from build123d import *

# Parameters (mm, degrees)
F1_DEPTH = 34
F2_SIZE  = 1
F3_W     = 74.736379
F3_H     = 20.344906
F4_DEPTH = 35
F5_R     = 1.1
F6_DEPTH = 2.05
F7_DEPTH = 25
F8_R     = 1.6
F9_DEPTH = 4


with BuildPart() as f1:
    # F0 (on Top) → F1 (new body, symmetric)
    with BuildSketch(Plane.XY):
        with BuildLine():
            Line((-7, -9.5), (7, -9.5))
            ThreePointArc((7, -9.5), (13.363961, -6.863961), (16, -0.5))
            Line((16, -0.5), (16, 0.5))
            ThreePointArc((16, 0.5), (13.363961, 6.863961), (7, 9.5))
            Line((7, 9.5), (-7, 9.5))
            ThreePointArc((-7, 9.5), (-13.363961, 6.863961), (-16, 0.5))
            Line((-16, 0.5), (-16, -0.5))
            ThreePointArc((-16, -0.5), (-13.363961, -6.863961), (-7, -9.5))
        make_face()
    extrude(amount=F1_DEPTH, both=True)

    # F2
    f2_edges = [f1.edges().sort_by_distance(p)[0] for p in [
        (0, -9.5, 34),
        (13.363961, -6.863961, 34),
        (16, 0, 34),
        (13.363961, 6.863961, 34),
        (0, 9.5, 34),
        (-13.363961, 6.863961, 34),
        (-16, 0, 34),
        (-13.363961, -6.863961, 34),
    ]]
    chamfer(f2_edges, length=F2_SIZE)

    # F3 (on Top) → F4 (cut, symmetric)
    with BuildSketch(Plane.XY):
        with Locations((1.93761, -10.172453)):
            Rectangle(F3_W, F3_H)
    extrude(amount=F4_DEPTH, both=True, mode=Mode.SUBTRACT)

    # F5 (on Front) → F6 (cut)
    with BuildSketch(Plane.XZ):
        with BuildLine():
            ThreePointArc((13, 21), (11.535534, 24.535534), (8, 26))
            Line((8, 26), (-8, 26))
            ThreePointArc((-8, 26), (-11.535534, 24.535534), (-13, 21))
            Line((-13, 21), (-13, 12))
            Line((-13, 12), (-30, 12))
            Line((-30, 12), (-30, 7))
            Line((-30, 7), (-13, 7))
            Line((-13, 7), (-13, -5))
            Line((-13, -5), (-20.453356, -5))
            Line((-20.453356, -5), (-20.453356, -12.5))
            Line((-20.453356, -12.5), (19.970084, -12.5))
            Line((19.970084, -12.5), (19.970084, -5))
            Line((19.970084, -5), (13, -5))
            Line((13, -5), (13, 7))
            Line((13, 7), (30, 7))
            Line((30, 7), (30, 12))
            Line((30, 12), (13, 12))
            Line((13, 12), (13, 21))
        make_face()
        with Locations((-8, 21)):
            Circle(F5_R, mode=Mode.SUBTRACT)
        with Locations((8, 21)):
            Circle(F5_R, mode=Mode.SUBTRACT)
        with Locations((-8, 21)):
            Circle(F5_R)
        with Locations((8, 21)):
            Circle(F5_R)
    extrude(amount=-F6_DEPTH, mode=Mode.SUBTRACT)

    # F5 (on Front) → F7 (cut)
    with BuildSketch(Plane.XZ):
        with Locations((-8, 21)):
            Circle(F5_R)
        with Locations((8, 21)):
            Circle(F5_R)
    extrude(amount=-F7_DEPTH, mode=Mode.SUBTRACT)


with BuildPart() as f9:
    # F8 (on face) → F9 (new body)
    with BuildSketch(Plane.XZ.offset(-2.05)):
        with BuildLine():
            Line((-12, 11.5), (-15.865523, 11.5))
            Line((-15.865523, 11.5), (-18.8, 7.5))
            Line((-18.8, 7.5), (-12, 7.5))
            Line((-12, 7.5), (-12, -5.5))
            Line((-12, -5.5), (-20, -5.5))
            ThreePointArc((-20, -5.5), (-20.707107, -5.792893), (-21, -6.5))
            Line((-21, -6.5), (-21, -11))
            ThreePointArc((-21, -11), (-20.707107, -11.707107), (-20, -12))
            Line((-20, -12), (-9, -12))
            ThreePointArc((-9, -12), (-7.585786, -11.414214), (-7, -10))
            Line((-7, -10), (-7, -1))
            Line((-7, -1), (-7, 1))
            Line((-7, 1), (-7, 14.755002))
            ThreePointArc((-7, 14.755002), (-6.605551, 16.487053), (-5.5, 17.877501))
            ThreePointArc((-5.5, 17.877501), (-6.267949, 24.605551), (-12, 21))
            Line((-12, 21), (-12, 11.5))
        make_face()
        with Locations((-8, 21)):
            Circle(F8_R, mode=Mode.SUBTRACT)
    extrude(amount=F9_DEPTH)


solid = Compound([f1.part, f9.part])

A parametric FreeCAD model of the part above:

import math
import FreeCAD as App
import Part
import Sketcher
from FreeCAD import Vector


def edges_at(feature, points):
    """Names of the edges that pass closest to the given points."""
    edges = feature.Shape.Edges
    near = lambda p: min(range(len(edges)), key=lambda i: edges[i].distToShape(Part.Vertex(*p))[0])
    return sorted({f"Edge{near(p) + 1}" for p in points})

doc = App.newDocument("Part")
body = doc.addObject("PartDesign::Body", "Body")

# Sketch on XY plane
sketch1 = body.newObject("Sketcher::SketchObject", "Sketch")
sketch1.AttachmentSupport = (doc.getObject("XY_Plane"), [""])
sketch1.MapMode = "FlatFace"
sketch1.addGeometry([
    Part.LineSegment(Vector(-7, -9.5, 0), Vector(7, -9.5, 0)),  # 0
    Part.ArcOfCircle(Part.Circle(Vector(7, -0.5, 0), Vector(0, 0, 1), 9), math.radians(-89.999999), math.radians(-0.000001)),  # 1
    Part.LineSegment(Vector(16, -0.5, 0), Vector(16, 0.5, 0)),  # 2
    Part.ArcOfCircle(Part.Circle(Vector(7, 0.5, 0), Vector(0, 0, 1), 9), math.radians(0.000001), math.radians(89.999999)),  # 3
    Part.LineSegment(Vector(7, 9.5, 0), Vector(-7, 9.5, 0)),  # 4
    Part.ArcOfCircle(Part.Circle(Vector(-7, 0.5, 0), Vector(0, 0, 1), 9), math.radians(90.000001), math.radians(179.999999)),  # 5
    Part.LineSegment(Vector(-16, 0.5, 0), Vector(-16, -0.5, 0)),  # 6
    Part.ArcOfCircle(Part.Circle(Vector(-7, -0.5, 0), Vector(0, 0, 1), 9), math.radians(-179.999999), math.radians(-90.000001)),  # 7
], False)
sketch1.addConstraint([
    Sketcher.Constraint("Tangent", 0, 2, 1, 1),
    Sketcher.Constraint("Tangent", 1, 2, 2, 1),
    Sketcher.Constraint("Tangent", 2, 2, 3, 1),
    Sketcher.Constraint("Tangent", 3, 2, 4, 1),
    Sketcher.Constraint("Tangent", 4, 2, 5, 1),
    Sketcher.Constraint("Tangent", 5, 2, 6, 1),
    Sketcher.Constraint("Tangent", 6, 2, 7, 1),
    Sketcher.Constraint("Tangent", 7, 2, 0, 1),
    Sketcher.Constraint("Horizontal", 0),
    Sketcher.Constraint("Vertical", 2),
    Sketcher.Constraint("Horizontal", 4),
    Sketcher.Constraint("Vertical", 6),
    Sketcher.Constraint("Equal", 1, 3),
    Sketcher.Constraint("Equal", 3, 5),
    Sketcher.Constraint("Equal", 5, 7),
    Sketcher.Constraint("Symmetric", 1, 3, 5, 3, -1, 1),
    Sketcher.Constraint("Radius", 1, 9.0),
    Sketcher.Constraint("DistanceX", 0, 1, 0, 2, 14.0),
    Sketcher.Constraint("DistanceY", 2, 1, 2, 2, 1.0),
])
pad1 = body.newObject("PartDesign::Pad", "Pad")
pad1.Profile = sketch1
pad1.Length = 68
pad1.Midplane = True
doc.recompute()

chamfer = body.newObject("PartDesign::Chamfer", "Chamfer")
chamfer.Base = (pad1, edges_at(pad1, [
    (0, -9.5, 34),
    (13.364, -6.864, 34),
    (16, 0, 34),
    (13.364, 6.864, 34),
    (0, 9.5, 34),
    (-13.364, 6.864, 34),
    (-16, 0, 34),
    (-13.364, -6.864, 34),
]))
chamfer.Size = 1

# Sketch on XY plane
sketch2 = body.newObject("Sketcher::SketchObject", "Sketch001")
sketch2.AttachmentSupport = (doc.getObject("XY_Plane"), [""])
sketch2.MapMode = "FlatFace"
sketch2.addGeometry([
    Part.LineSegment(Vector(-35.43058, 0, 0), Vector(-35.43058, -20.344906, 0)),
    Part.LineSegment(Vector(-35.43058, -20.344906, 0), Vector(39.305799, -20.344906, 0)),
    Part.LineSegment(Vector(39.305799, -20.344906, 0), Vector(39.305799, 0, 0)),
    Part.LineSegment(Vector(39.305799, 0, 0), Vector(-35.43058, 0, 0)),
], False)
sketch2.addConstraint([
    Sketcher.Constraint("Coincident", 0, 2, 1, 1),
    Sketcher.Constraint("Coincident", 1, 2, 2, 1),
    Sketcher.Constraint("Coincident", 2, 2, 3, 1),
    Sketcher.Constraint("Coincident", 3, 2, 0, 1),
    Sketcher.Constraint("Vertical", 0),
    Sketcher.Constraint("Horizontal", 1),
    Sketcher.Constraint("Vertical", 2),
    Sketcher.Constraint("Horizontal", 3),
    Sketcher.Constraint("PointOnObject", 2, 2, -1),
    Sketcher.Constraint("DistanceX", 1, 1, 1, 2, 74.736379),
    Sketcher.Constraint("DistanceX", -1, 1, 1, 2, 39.305799),
    Sketcher.Constraint("DistanceY", 0, 2, 0, 1, 20.344906),
])
pocket1 = body.newObject("PartDesign::Pocket", "Pocket")
pocket1.Profile = sketch2
pocket1.Length = 70
pocket1.Midplane = True

# Sketch on XZ plane
sketch3 = body.newObject("Sketcher::SketchObject", "Sketch002")
sketch3.AttachmentSupport = (doc.getObject("XZ_Plane"), [""])
sketch3.MapMode = "FlatFace"
sketch3.addGeometry([
    Part.ArcOfCircle(Part.Circle(Vector(8, 21, 0), Vector(0, 0, 1), 5), math.radians(-0.000004), math.radians(90.000004)),  # 0
    Part.LineSegment(Vector(8, 26, 0), Vector(-8, 26, 0)),  # 1
    Part.ArcOfCircle(Part.Circle(Vector(-8, 21, 0), Vector(0, 0, 1), 5), math.radians(89.999996), math.radians(180.000004)),  # 2
    Part.LineSegment(Vector(-13, 21, 0), Vector(-13, 12, 0)),  # 3
    Part.LineSegment(Vector(-13, 12, 0), Vector(-30, 12, 0)),  # 4
    Part.LineSegment(Vector(-30, 12, 0), Vector(-30, 7, 0)),  # 5
    Part.LineSegment(Vector(-30, 7, 0), Vector(-13, 7, 0)),  # 6
    Part.LineSegment(Vector(-13, 7, 0), Vector(-13, -5, 0)),  # 7
    Part.LineSegment(Vector(-13, -5, 0), Vector(-20.453356, -5, 0)),  # 8
    Part.LineSegment(Vector(-20.453356, -5, 0), Vector(-20.453356, -12.5, 0)),  # 9
    Part.LineSegment(Vector(-20.453356, -12.5, 0), Vector(19.970084, -12.5, 0)),  # 10
    Part.LineSegment(Vector(19.970084, -12.5, 0), Vector(19.970084, -5, 0)),  # 11
    Part.LineSegment(Vector(19.970084, -5, 0), Vector(13, -5, 0)),  # 12
    Part.LineSegment(Vector(13, -5, 0), Vector(13, 7, 0)),  # 13
    Part.LineSegment(Vector(13, 7, 0), Vector(30, 7, 0)),  # 14
    Part.LineSegment(Vector(30, 7, 0), Vector(30, 12, 0)),  # 15
    Part.LineSegment(Vector(30, 12, 0), Vector(13, 12, 0)),  # 16
    Part.LineSegment(Vector(13, 12, 0), Vector(13, 21, 0)),  # 17
], False)
sketch3.addConstraint([
    Sketcher.Constraint("Tangent", 0, 2, 1, 1),
    Sketcher.Constraint("Tangent", 1, 2, 2, 1),
    Sketcher.Constraint("Tangent", 2, 2, 3, 1),
    Sketcher.Constraint("Coincident", 3, 2, 4, 1),
    Sketcher.Constraint("Coincident", 4, 2, 5, 1),
    Sketcher.Constraint("Coincident", 5, 2, 6, 1),
    Sketcher.Constraint("Coincident", 6, 2, 7, 1),
    Sketcher.Constraint("Coincident", 7, 2, 8, 1),
    Sketcher.Constraint("Coincident", 8, 2, 9, 1),
    Sketcher.Constraint("Coincident", 9, 2, 10, 1),
    Sketcher.Constraint("Coincident", 10, 2, 11, 1),
    Sketcher.Constraint("Coincident", 11, 2, 12, 1),
    Sketcher.Constraint("Coincident", 12, 2, 13, 1),
    Sketcher.Constraint("Coincident", 13, 2, 14, 1),
    Sketcher.Constraint("Coincident", 14, 2, 15, 1),
    Sketcher.Constraint("Coincident", 15, 2, 16, 1),
    Sketcher.Constraint("Coincident", 16, 2, 17, 1),
    Sketcher.Constraint("Tangent", 17, 2, 0, 1),
    Sketcher.Constraint("Horizontal", 1),
    Sketcher.Constraint("Vertical", 3),
    Sketcher.Constraint("Horizontal", 4),
    Sketcher.Constraint("Vertical", 5),
    Sketcher.Constraint("Horizontal", 6),
    Sketcher.Constraint("Vertical", 7),
    Sketcher.Constraint("Horizontal", 8),
    Sketcher.Constraint("Vertical", 9),
    Sketcher.Constraint("Horizontal", 10),
    Sketcher.Constraint("Vertical", 11),
    Sketcher.Constraint("Horizontal", 12),
    Sketcher.Constraint("Vertical", 13),
    Sketcher.Constraint("Horizontal", 14),
    Sketcher.Constraint("Vertical", 15),
    Sketcher.Constraint("Horizontal", 16),
    Sketcher.Constraint("Vertical", 17),
    Sketcher.Constraint("Equal", 0, 2),
    Sketcher.Constraint("Symmetric", 7, 2, 12, 2, -2),
    Sketcher.Constraint("Symmetric", 5, 2, 14, 2, -2),
    Sketcher.Constraint("Symmetric", 3, 2, 16, 2, -2),
    Sketcher.Constraint("Vertical", 3, 2, 6, 2),
    Sketcher.Constraint("Radius", 0, 5.0),
    Sketcher.Constraint("DistanceX", 1, 2, 1, 1, 16.0),
    Sketcher.Constraint("DistanceX", 4, 2, 4, 1, 17.0),
    Sketcher.Constraint("DistanceY", 3, 2, 3, 1, 9.0),
    Sketcher.Constraint("DistanceY", 5, 2, 5, 1, 5.0),
    Sketcher.Constraint("DistanceY", 7, 2, 7, 1, 12.0),
    Sketcher.Constraint("DistanceY", 9, 2, 9, 1, 7.5),
    Sketcher.Constraint("DistanceY", -1, 1, 0, 3, 21.0),
    Sketcher.Constraint("DistanceX", 10, 1, 10, 2, 40.42344),
    Sketcher.Constraint("DistanceX", 8, 2, 8, 1, 7.453356),
])
pocket2 = body.newObject("PartDesign::Pocket", "Pocket001")
pocket2.Profile = sketch3
pocket2.Length = 2.05

# Sketch on XZ plane
sketch4 = body.newObject("Sketcher::SketchObject", "Sketch003")
sketch4.AttachmentSupport = (doc.getObject("XZ_Plane"), [""])
sketch4.MapMode = "FlatFace"
sketch4.addGeometry([
    Part.Circle(Vector(-8, 21, 0), Vector(0, 0, 1), 1.1),
    Part.Circle(Vector(8, 21, 0), Vector(0, 0, 1), 1.1),
], False)
sketch4.addConstraint([
    Sketcher.Constraint("Equal", 0, 1),
    Sketcher.Constraint("Symmetric", 0, 3, 1, 3, -2),
    Sketcher.Constraint("Diameter", 0, 2.2),
    Sketcher.Constraint("DistanceX", 0, 3, -1, 1, 8.0),
    Sketcher.Constraint("DistanceY", -1, 1, 0, 3, 21.0),
])
pocket3 = body.newObject("PartDesign::Pocket", "Pocket002")
pocket3.Profile = sketch4
pocket3.Length = 25
body2 = doc.addObject("PartDesign::Body", "Body001")

# Sketch on XZ plane
sketch5 = body2.newObject("Sketcher::SketchObject", "Sketch004")
sketch5.AttachmentSupport = (doc.getObject("XZ_Plane001"), [""])
sketch5.MapMode = "FlatFace"
sketch5.AttachmentOffset = App.Placement(Vector(0, 0, -2.05), App.Rotation())
sketch5.addGeometry([
    Part.LineSegment(Vector(-12, 11.5, 0), Vector(-15.865523, 11.5, 0)),  # 0
    Part.LineSegment(Vector(-15.865523, 11.5, 0), Vector(-18.8, 7.5, 0)),  # 1
    Part.LineSegment(Vector(-18.8, 7.5, 0), Vector(-12, 7.5, 0)),  # 2
    Part.LineSegment(Vector(-12, 7.5, 0), Vector(-12, -5.5, 0)),  # 3
    Part.LineSegment(Vector(-12, -5.5, 0), Vector(-20, -5.5, 0)),  # 4
    Part.ArcOfCircle(Part.Circle(Vector(-20.000001, -6.499999, 0), Vector(0, 0, 1), 0.999999), math.radians(89.999957), math.radians(180.000043)),  # 5
    Part.LineSegment(Vector(-21, -6.5, 0), Vector(-21, -11, 0)),  # 6
    Part.ArcOfCircle(Part.Circle(Vector(-20.000001, -11.000001, 0), Vector(0, 0, 1), 0.999999), math.radians(179.999957), math.radians(270.000043)),  # 7
    Part.LineSegment(Vector(-20, -12, 0), Vector(-9, -12, 0)),  # 8
    Part.ArcOfCircle(Part.Circle(Vector(-8.999999, -10.000001, 0), Vector(0, 0, 1), 1.999999), math.radians(-90.000043), math.radians(0.000043)),  # 9
    Part.LineSegment(Vector(-7, -10, 0), Vector(-7, 14.755002, 0)),  # 10
    Part.ArcOfCircle(Part.Circle(Vector(-2.999998, 14.755001, 0), Vector(0, 0, 1), 4.000002), math.radians(128.682198), math.radians(179.99999)),  # 11
    Part.ArcOfCircle(Part.Circle(Vector(-8, 21, 0), Vector(0, 0, 1), 4), math.radians(-51.317811), math.radians(179.999999)),  # 12
    Part.LineSegment(Vector(-12, 21, 0), Vector(-12, 11.5, 0)),  # 13
    Part.Circle(Vector(-8, 21, 0), Vector(0, 0, 1), 1.6),  # 14
], False)
sketch5.addConstraint([
    Sketcher.Constraint("Coincident", 0, 2, 1, 1),
    Sketcher.Constraint("Coincident", 1, 2, 2, 1),
    Sketcher.Constraint("Coincident", 2, 2, 3, 1),
    Sketcher.Constraint("Coincident", 3, 2, 4, 1),
    Sketcher.Constraint("Tangent", 4, 2, 5, 1),
    Sketcher.Constraint("Tangent", 5, 2, 6, 1),
    Sketcher.Constraint("Tangent", 6, 2, 7, 1),
    Sketcher.Constraint("Tangent", 7, 2, 8, 1),
    Sketcher.Constraint("Tangent", 8, 2, 9, 1),
    Sketcher.Constraint("Tangent", 9, 2, 10, 1),
    Sketcher.Constraint("Tangent", 10, 2, 11, 2),
    Sketcher.Constraint("Tangent", 11, 1, 12, 1),
    Sketcher.Constraint("Tangent", 12, 2, 13, 1),
    Sketcher.Constraint("Coincident", 13, 2, 0, 1),
    Sketcher.Constraint("Horizontal", 0),
    Sketcher.Constraint("Horizontal", 2),
    Sketcher.Constraint("Vertical", 3),
    Sketcher.Constraint("Horizontal", 4),
    Sketcher.Constraint("Vertical", 6),
    Sketcher.Constraint("Horizontal", 8),
    Sketcher.Constraint("Vertical", 10),
    Sketcher.Constraint("Vertical", 13),
    Sketcher.Constraint("Coincident", 14, 3, 12, 3),
    Sketcher.Constraint("Equal", 5, 7),
    Sketcher.Constraint("Equal", 11, 12),
    Sketcher.Constraint("Vertical", 3, 2, 12, 2),
    Sketcher.Constraint("Radius", 5, 0.999999),
    Sketcher.Constraint("Radius", 9, 1.999999),
    Sketcher.Constraint("Radius", 11, 4.000002),
    Sketcher.Constraint("Diameter", 14, 3.2),
    Sketcher.Constraint("DistanceX", 4, 2, 4, 1, 8.0),
    Sketcher.Constraint("DistanceX", 8, 1, 8, 2, 11.0),
    Sketcher.Constraint("DistanceY", 3, 2, 3, 1, 13.0),
    Sketcher.Constraint("DistanceX", 2, 1, 2, 2, 6.8),
    Sketcher.Constraint("DistanceY", 6, 2, 6, 1, 4.5),
    Sketcher.Constraint("DistanceY", 13, 2, 13, 1, 9.5),
    Sketcher.Constraint("DistanceX", 5, 3, -1, 1, 20.000001),
    Sketcher.Constraint("DistanceY", 7, 3, -1, 1, 11.000001),
    Sketcher.Constraint("DistanceY", -1, 1, 12, 3, 21.0),
    Sketcher.Constraint("DistanceX", 0, 2, 0, 1, 3.865523),
])
pad2 = body2.newObject("PartDesign::Pad", "Pad001")
pad2.Profile = sketch5
pad2.Length = 4

doc.recompute()
